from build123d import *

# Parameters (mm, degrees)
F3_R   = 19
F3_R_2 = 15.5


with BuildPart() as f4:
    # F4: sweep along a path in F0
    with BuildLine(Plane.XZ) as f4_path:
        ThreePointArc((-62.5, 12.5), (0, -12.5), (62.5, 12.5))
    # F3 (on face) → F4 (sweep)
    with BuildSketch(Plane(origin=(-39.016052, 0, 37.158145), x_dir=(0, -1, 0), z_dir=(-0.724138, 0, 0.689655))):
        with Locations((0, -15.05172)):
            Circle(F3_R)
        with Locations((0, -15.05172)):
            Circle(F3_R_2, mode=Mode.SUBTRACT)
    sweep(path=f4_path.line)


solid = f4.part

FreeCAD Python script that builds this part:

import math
import FreeCAD as App
import Part
import Sketcher

V = App.Vector
Q = App.Units.Quantity

doc = App.newDocument("Part")
body = doc.addObject("PartDesign::Body", "Body")

sketch1 = doc.addObject("Sketcher::SketchObject", "Sketch")
body.addObject(sketch1)
sketch1.Placement = App.Placement(V(-39.016052, 0, 37.158145), App.Rotation(V(0, -1, 0), V(0.689655048, 0, 0.72413805), V(-0.72413805, 0, 0.689655048), "ZXY"))
sketch1.addGeometry([
    Part.Circle(V(0, -15, 0), V(0, 0, 1), 19),
    Part.Circle(V(0, -15, 0), V(0, 0, 1), 16),
], False)
sketch1.addConstraint([
    Sketcher.Constraint("Coincident", 1, 3, 0, 3),
    Sketcher.Constraint("PointOnObject", 0, 3, -2),
    Sketcher.Constraint("Diameter", 0, Q("38 mm")),
    Sketcher.Constraint("Diameter", 1, Q("31 mm")),
    Sketcher.Constraint("DistanceY", 0, 3, -1, 1, Q("15.05172 mm")),
])

sketch2 = doc.addObject("Sketcher::SketchObject", "Sketch001")
body.addObject(sketch2)
sketch2.AttachmentSupport = (doc.XZ_Plane, [""])
sketch2.MapMode = "FlatFace"
sketch2.addGeometry(Part.ArcOfCircle(Part.Circle(V(0, 78, 0), V(0, 0, 1), 91), math.radians(-134), math.radians(-46)), False)
sketch2.addConstraint([
    Sketcher.Constraint("Symmetric", 0, 1, 0, 2, -2),
    Sketcher.Constraint("Radius", 0, Q("90.625 mm")),
    Sketcher.Constraint("DistanceX", 0, 1, 0, 2, Q("125 mm")),
    Sketcher.Constraint("DistanceY", -1, 1, 0, 1, Q("12.5 mm")),
])
doc.recompute()

additivepipe = doc.addObject("PartDesign::AdditivePipe", "AdditivePipe")
body.addObject(additivepipe)
additivepipe.Profile = sketch1
additivepipe.Spine = (sketch2, ["Edge1"])

doc.recompute()
